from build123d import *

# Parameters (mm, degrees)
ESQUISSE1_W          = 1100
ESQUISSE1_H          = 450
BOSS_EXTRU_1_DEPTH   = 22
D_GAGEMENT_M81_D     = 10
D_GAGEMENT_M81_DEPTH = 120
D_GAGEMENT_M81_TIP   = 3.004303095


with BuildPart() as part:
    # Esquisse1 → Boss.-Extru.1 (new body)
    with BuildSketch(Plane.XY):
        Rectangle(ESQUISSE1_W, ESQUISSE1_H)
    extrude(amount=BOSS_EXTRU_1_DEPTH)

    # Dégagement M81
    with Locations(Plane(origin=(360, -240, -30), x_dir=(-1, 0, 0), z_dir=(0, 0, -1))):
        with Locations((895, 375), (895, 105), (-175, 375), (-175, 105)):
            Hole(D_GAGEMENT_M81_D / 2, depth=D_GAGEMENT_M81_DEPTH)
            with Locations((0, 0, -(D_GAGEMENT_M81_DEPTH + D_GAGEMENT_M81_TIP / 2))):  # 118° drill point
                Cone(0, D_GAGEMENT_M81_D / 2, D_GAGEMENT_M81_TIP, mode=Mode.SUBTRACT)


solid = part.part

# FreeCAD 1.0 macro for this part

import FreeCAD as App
import Part
import Sketcher
Q = App.Units.Quantity


def add_polygon(sketch, points):
    """Adds a closed chain of lines whose ends are joined by coincident constraints."""
    first, n = sketch.GeometryCount, len(points)
    for a, b in zip(points, points[1:] + points[:1]):
        sketch.addGeometry(Part.LineSegment(App.Vector(*a, 0), App.Vector(*b, 0)), False)
    for i in range(n):
        sketch.addConstraint(Sketcher.Constraint("Coincident", first + i, 2, first + (i + 1) % n, 1))

doc = App.newDocument("Part")
body = doc.addObject("PartDesign::Body", "Body")

sketch1 = body.newObject("Sketcher::SketchObject", "Sketch")
sketch1.AttachmentSupport = (doc.getObject("XY_Plane"), [""])
sketch1.MapMode = "FlatFace"
add_polygon(sketch1, [(-550, 225), (-550, -225), (550, -225), (550, 225)])
sketch1.addConstraint([
    Sketcher.Constraint("Vertical", 0),
    Sketcher.Constraint("Horizontal", 1),
    Sketcher.Constraint("Vertical", 2),
    Sketcher.Constraint("Horizontal", 3),
    Sketcher.Constraint("Symmetric", 0, 2, 2, 2, -1, 1),
    Sketcher.Constraint("DistanceX", 1, 1, 1, 2, Q("1100 mm")),
    Sketcher.Constraint("DistanceY", 0, 2, 0, 1, Q("450 mm")),
])
pad1 = body.newObject("PartDesign::Pad", "Pad")
pad1.Profile = sketch1
pad1.Length = 22

sketch2 = body.newObject("Sketcher::SketchObject", "Sketch001")
sketch2.AttachmentSupport = (doc.getObject("XY_Plane"), [""])
sketch2.MapMode = "FlatFace"
sketch2.AttachmentOffset = App.Placement(App.Vector(0, 0, -30), App.Rotation())
sketch2.addGeometry([
    Part.Circle(App.Vector(-535, 135, 0), App.Vector(0, 0, 1), 5),
    Part.Circle(App.Vector(-535, -135, 0), App.Vector(0, 0, 1), 5),
    Part.Circle(App.Vector(535, 135, 0), App.Vector(0, 0, 1), 5),
    Part.Circle(App.Vector(535, -135, 0), App.Vector(0, 0, 1), 5),
], False)
sketch2.addConstraint([
    Sketcher.Constraint("Equal", 0, 1),
    Sketcher.Constraint("Equal", 1, 2),
    Sketcher.Constraint("Equal", 2, 3),
    Sketcher.Constraint("Symmetric", 1, 3, 2, 3, -1, 1),
    Sketcher.Constraint("Symmetric", 0, 3, 3, 3, -1, 1),
    Sketcher.Constraint("Symmetric", 0, 3, 2, 3, -2),
    Sketcher.Constraint("Diameter", 0, Q("10 mm")),
    Sketcher.Constraint("DistanceX", 0, 3, -1, 1, Q("535 mm")),
    Sketcher.Constraint("DistanceY", -1, 1, 0, 3, Q("135 mm")),
])
doc.recompute()
hole = body.newObject("PartDesign::Hole", "Hole")
hole.Profile = sketch2
hole.ThreadType = "None"
hole.Diameter = 10
hole.DepthType = "Dimension"
hole.Depth = 120
hole.DrillPoint = "Angled"
hole.DrillPointAngle = 118
hole.Reversed = True

doc.recompute()
